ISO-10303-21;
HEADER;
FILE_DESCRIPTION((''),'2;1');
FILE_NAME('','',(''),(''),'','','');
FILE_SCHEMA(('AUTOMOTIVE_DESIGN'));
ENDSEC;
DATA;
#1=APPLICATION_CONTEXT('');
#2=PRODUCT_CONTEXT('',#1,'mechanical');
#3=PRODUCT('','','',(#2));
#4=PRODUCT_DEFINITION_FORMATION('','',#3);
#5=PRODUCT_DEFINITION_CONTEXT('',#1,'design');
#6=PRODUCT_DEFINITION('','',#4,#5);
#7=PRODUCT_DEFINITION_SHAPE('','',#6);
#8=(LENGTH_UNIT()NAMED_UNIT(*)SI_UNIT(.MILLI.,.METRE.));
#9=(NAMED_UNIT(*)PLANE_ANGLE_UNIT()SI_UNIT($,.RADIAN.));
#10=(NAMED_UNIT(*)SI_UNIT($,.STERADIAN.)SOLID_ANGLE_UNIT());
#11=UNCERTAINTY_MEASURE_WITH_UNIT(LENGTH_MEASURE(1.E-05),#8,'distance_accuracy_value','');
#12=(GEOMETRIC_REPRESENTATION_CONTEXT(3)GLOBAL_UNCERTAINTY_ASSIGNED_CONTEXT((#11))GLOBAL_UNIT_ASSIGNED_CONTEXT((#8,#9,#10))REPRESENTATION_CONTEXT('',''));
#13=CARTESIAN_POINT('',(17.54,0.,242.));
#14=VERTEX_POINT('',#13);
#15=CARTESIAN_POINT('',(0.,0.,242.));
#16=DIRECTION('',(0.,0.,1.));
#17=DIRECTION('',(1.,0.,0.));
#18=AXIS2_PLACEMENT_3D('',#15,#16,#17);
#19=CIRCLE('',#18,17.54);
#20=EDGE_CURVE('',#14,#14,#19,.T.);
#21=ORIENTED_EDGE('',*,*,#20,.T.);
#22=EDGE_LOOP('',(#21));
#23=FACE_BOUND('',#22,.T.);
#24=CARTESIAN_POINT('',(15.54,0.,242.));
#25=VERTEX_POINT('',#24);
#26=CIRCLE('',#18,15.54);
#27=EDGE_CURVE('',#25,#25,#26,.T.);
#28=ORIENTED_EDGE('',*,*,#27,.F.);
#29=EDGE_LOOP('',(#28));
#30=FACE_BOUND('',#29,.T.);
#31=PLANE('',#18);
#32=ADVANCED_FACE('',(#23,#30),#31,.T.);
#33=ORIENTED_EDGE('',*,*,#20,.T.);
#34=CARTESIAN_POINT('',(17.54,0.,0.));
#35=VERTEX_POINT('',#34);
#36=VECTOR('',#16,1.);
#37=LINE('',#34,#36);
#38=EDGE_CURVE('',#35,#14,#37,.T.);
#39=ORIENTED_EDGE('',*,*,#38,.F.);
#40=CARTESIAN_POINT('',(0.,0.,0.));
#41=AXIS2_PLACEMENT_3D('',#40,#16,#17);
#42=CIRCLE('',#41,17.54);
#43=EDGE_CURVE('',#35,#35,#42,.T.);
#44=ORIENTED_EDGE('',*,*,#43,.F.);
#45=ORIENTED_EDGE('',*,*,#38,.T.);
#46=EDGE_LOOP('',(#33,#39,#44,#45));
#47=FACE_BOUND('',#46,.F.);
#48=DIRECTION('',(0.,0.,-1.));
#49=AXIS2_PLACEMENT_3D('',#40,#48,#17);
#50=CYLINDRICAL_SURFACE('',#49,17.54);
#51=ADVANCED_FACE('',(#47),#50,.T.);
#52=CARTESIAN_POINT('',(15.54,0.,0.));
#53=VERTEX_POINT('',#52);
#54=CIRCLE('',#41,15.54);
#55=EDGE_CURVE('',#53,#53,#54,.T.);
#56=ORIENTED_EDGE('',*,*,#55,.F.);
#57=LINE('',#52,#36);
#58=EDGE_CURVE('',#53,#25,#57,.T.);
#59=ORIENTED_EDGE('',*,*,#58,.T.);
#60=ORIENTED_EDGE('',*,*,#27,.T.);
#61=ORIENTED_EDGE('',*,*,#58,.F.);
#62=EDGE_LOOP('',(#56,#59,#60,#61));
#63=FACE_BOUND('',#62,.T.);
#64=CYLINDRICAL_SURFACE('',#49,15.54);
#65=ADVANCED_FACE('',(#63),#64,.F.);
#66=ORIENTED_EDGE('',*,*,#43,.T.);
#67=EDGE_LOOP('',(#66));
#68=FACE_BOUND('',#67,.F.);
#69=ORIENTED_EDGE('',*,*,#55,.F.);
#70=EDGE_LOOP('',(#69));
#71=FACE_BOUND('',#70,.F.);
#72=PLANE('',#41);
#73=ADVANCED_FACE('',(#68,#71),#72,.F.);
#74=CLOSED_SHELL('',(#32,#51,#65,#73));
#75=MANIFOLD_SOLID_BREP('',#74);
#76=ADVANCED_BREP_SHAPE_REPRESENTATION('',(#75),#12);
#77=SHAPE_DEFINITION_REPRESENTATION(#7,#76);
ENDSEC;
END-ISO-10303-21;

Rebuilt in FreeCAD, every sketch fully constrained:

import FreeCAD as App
import Part
import Sketcher

V = App.Vector
Q = App.Units.Quantity

doc = App.newDocument("Part")
body = doc.addObject("PartDesign::Body", "Body")

sketch1 = body.newObject("Sketcher::SketchObject", "Sketch")
sketch1.AttachmentSupport = (doc.getObject("XY_Plane"), [""])
sketch1.MapMode = "FlatFace"
sketch1.addGeometry([
    Part.Circle(V(0, 0, 0), V(0, 0, 1), 18),
    Part.Circle(V(0, 0, 0), V(0, 0, 1), 16),
], False)
sketch1.addConstraint([
    Sketcher.Constraint("Coincident", 0, 3, -1, 1),
    Sketcher.Constraint("Coincident", 1, 3, -1, 1),
    Sketcher.Constraint("Diameter", 0, Q("35.08 mm")),
    Sketcher.Constraint("Diameter", 1, Q("31.08 mm")),
])
pad1 = body.newObject("PartDesign::Pad", "Pad")
pad1.Profile = sketch1
pad1.Length = 242

doc.recompute()
